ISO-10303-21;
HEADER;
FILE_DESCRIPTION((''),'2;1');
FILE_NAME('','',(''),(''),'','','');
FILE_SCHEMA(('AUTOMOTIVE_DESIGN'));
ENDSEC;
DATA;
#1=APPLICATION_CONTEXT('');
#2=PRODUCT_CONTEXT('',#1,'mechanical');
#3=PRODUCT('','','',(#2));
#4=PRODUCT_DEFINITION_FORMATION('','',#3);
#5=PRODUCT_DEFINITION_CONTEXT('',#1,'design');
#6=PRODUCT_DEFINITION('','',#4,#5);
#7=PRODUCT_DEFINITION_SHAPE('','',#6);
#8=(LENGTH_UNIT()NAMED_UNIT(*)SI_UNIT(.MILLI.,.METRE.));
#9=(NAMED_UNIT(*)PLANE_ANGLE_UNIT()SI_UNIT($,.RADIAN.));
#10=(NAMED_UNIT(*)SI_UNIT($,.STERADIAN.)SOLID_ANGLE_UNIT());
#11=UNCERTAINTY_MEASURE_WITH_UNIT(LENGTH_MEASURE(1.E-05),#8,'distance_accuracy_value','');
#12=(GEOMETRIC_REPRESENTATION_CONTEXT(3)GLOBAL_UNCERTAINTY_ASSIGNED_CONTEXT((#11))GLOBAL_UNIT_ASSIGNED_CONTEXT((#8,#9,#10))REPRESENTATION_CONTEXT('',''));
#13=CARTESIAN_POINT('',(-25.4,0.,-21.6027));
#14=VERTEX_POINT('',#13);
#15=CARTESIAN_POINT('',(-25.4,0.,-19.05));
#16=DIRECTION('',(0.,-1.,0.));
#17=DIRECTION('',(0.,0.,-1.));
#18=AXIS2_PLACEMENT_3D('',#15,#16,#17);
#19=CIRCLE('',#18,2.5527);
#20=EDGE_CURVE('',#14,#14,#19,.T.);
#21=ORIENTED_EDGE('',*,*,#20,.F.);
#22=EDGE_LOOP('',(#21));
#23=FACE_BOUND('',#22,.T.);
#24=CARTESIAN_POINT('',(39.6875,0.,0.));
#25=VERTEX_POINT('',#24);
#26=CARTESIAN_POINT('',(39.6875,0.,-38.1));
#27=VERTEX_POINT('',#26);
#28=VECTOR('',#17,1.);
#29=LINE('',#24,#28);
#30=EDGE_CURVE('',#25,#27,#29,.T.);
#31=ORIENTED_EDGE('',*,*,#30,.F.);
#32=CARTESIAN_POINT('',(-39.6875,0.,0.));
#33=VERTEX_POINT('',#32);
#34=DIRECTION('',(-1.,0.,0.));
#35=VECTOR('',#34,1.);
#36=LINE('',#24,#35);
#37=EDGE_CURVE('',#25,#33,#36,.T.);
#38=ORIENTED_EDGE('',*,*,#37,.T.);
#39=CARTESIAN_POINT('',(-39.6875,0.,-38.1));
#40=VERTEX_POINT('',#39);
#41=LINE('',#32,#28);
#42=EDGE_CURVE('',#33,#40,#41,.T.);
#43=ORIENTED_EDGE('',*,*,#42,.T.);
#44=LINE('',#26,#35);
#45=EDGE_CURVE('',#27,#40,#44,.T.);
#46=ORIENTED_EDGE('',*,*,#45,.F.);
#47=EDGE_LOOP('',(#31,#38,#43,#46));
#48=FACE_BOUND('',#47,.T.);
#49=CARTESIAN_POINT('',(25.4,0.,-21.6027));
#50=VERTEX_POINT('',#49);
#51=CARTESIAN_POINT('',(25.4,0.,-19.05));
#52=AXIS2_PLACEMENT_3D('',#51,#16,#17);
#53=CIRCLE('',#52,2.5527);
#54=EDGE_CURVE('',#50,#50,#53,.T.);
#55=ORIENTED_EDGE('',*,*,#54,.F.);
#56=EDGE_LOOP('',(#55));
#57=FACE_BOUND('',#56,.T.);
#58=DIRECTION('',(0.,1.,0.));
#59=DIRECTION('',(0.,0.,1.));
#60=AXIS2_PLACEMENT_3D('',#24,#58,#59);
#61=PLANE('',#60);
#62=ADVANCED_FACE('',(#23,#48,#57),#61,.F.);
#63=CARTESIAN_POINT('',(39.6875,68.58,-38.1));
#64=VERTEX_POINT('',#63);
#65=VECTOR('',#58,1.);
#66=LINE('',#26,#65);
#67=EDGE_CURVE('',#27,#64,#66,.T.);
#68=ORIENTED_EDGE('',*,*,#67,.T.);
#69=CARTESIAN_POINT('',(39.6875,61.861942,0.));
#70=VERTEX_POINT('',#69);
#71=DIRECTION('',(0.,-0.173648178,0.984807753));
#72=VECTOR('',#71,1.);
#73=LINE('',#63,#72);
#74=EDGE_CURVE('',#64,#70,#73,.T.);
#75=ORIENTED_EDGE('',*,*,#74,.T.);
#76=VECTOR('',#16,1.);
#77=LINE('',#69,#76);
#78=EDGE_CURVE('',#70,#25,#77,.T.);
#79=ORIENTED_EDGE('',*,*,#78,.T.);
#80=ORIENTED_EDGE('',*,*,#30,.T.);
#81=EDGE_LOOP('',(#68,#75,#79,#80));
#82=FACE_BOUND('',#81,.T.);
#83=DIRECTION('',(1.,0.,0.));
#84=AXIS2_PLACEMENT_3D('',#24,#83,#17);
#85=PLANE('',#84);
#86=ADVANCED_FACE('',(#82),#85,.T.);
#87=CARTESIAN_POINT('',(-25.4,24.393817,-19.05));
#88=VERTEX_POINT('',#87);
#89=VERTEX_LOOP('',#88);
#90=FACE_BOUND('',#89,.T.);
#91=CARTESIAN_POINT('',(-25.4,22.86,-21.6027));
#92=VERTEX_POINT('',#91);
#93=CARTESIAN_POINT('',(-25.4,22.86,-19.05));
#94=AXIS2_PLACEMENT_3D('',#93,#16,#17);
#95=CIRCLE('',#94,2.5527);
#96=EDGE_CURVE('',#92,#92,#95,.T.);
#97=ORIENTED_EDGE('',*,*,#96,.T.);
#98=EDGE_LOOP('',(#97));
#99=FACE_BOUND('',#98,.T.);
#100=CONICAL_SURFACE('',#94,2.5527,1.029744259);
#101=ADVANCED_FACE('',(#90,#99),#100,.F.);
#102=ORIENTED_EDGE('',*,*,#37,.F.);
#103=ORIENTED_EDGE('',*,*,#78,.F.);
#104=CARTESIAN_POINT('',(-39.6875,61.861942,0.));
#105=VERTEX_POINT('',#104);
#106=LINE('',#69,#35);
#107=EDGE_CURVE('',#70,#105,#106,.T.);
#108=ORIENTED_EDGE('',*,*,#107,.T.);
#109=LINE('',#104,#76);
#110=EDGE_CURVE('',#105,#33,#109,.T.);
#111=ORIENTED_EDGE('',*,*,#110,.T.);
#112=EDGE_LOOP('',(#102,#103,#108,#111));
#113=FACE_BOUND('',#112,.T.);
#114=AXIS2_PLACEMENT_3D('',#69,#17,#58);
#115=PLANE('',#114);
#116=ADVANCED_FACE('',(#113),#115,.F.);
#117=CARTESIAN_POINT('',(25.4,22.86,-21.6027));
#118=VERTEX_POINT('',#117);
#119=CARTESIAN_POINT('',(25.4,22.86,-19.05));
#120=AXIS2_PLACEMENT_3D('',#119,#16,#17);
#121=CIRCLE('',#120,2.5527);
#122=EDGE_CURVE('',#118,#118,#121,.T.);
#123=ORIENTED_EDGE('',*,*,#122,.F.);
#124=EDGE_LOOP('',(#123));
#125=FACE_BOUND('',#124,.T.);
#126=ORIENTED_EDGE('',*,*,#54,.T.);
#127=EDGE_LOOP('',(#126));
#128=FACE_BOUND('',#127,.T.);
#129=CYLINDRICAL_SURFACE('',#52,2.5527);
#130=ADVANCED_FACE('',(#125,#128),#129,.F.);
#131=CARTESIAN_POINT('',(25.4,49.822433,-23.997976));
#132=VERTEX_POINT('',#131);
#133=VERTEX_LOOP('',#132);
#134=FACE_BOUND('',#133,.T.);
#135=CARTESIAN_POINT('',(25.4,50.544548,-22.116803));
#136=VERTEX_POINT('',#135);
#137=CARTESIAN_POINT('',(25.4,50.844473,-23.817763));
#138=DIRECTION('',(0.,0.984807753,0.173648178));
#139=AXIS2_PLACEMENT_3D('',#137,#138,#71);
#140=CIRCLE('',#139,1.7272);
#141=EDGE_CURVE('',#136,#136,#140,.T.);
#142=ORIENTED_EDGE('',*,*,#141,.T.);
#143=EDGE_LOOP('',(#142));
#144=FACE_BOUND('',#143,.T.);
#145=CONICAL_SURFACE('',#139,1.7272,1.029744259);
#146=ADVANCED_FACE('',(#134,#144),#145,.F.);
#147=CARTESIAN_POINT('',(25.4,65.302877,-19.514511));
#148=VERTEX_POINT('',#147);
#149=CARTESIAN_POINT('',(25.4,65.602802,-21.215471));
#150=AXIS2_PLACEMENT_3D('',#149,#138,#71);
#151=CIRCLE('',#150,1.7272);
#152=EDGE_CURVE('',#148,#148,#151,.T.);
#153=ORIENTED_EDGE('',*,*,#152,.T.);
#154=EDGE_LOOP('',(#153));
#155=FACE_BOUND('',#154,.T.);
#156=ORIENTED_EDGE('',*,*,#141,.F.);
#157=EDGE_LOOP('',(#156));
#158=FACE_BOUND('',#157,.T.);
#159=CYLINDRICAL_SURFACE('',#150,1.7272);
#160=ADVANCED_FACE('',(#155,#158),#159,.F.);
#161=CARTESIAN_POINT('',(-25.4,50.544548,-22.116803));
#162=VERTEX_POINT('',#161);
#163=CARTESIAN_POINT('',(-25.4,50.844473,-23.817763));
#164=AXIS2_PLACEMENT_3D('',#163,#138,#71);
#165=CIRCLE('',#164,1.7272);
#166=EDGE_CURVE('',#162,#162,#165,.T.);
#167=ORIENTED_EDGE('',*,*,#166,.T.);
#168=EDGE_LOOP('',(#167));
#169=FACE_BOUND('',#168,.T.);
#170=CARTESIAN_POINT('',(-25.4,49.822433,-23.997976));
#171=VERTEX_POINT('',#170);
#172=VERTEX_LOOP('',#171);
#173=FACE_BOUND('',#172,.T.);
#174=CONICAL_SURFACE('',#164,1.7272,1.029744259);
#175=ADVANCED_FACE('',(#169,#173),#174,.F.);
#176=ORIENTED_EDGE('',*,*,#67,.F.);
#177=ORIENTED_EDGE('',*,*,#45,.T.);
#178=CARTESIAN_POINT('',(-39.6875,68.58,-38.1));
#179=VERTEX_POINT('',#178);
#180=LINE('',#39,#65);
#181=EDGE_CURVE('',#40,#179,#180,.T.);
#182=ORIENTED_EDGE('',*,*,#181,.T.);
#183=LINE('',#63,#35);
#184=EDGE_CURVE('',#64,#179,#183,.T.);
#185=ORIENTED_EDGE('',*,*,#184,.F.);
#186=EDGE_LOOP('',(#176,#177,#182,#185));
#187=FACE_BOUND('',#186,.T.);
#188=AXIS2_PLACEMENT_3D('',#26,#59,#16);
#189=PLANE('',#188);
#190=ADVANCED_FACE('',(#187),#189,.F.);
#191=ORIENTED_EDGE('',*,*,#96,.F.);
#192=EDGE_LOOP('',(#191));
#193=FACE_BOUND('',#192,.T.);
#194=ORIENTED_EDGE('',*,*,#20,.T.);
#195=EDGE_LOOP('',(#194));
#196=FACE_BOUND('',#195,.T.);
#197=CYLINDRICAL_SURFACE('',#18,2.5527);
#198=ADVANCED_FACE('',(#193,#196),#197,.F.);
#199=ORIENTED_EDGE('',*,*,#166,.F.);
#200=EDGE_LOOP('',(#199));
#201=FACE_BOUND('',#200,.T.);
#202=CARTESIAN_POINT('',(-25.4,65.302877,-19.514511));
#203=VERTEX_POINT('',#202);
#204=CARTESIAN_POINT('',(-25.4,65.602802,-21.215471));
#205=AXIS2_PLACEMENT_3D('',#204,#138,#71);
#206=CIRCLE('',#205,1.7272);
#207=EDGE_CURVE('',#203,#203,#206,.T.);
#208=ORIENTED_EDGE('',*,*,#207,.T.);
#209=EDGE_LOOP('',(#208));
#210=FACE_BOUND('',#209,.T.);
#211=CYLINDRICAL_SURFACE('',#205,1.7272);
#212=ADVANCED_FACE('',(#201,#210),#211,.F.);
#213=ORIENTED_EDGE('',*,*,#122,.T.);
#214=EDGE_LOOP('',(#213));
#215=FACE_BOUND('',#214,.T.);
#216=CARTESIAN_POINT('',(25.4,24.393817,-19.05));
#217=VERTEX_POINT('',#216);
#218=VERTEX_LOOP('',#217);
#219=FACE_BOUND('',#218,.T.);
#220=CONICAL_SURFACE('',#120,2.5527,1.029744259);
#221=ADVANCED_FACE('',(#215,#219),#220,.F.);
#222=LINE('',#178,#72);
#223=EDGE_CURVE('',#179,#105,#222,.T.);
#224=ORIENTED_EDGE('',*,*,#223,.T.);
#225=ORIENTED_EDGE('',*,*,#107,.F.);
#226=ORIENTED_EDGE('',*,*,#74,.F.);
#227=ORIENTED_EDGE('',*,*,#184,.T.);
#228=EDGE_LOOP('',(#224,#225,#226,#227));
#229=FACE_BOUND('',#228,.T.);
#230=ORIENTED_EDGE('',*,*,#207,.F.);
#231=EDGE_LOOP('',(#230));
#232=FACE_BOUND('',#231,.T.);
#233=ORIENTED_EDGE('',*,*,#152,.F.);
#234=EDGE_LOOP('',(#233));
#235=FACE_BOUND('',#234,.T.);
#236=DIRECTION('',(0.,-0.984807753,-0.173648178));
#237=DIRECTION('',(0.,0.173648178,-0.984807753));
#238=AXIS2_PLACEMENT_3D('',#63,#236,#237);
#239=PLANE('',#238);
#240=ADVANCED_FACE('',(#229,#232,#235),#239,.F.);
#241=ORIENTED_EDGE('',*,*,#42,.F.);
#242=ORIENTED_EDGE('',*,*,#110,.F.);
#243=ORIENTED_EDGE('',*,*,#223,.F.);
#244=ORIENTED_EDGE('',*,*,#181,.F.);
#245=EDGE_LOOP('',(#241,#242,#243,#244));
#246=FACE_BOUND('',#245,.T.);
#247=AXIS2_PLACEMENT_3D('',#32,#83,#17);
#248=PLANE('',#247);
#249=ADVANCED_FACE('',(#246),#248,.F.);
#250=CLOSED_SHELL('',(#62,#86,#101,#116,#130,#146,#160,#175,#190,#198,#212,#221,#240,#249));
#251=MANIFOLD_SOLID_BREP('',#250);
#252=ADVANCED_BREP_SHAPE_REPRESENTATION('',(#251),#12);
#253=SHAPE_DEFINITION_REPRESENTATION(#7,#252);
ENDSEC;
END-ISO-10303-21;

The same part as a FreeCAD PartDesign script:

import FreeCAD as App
import Part
import Sketcher
Q = App.Units.Quantity

doc = App.newDocument("Part")
body = doc.addObject("PartDesign::Body", "Body")

sketch1 = doc.addObject("Sketcher::SketchObject", "Sketch")
body.addObject(sketch1)
sketch1.AttachmentSupport = (doc.YZ_Plane, [""])
sketch1.MapMode = "FlatFace"
sketch1.addGeometry([
    Part.LineSegment(App.Vector(0, 0, 0), App.Vector(0, -38.1, 0)),
    Part.LineSegment(App.Vector(0, -38.1, 0), App.Vector(68.58, -38.1, 0)),
    Part.LineSegment(App.Vector(68.58, -38.1, 0), App.Vector(61.861942, 0, 0)),
    Part.LineSegment(App.Vector(61.861942, 0, 0), App.Vector(0, 0, 0)),
], False)
sketch1.addConstraint([
    Sketcher.Constraint("Coincident", 0, 2, 1, 1),
    Sketcher.Constraint("Coincident", 1, 2, 2, 1),
    Sketcher.Constraint("Coincident", 2, 2, 3, 1),
    Sketcher.Constraint("Coincident", 3, 2, 0, 1),
    Sketcher.Constraint("Vertical", 0),
    Sketcher.Constraint("Horizontal", 1),
    Sketcher.Constraint("Horizontal", 3),
    Sketcher.Constraint("Coincident", 3, 2, -1, 1),
    Sketcher.Constraint("DistanceX", 1, 1, 1, 2, Q("2.7 in")),
    Sketcher.Constraint("DistanceY", 0, 2, 0, 1, Q("1.5 in")),
    Sketcher.Constraint("Angle", 2, Q("100 deg")),
])
pad1 = doc.addObject("PartDesign::Pad", "Pad")
body.addObject(pad1)
pad1.Profile = sketch1
pad1.Length = Q("3.125 in")
pad1.Midplane = True

sketch2 = doc.addObject("Sketcher::SketchObject", "Sketch001")
body.addObject(sketch2)
sketch2.AttachmentSupport = (doc.XZ_Plane, [""])
sketch2.MapMode = "FlatFace"
sketch2.addGeometry([
    Part.Circle(App.Vector(-25.4, -19.05, 0), App.Vector(0, 0, 1), 2.5527),
    Part.Circle(App.Vector(25.4, -19.05, 0), App.Vector(0, 0, 1), 2.5527),
], False)
sketch2.addConstraint([
    Sketcher.Constraint("Equal", 0, 1),
    Sketcher.Constraint("Symmetric", 0, 3, 1, 3, -2),
    Sketcher.Constraint("Diameter", 0, Q("0.201 in")),
    Sketcher.Constraint("DistanceX", 0, 3, -1, 1, Q("1 in")),
    Sketcher.Constraint("DistanceY", 0, 3, -1, 1, Q("0.75 in")),
])
doc.recompute()
hole = doc.addObject("PartDesign::Hole", "Hole")
body.addObject(hole)
hole.Profile = sketch2
hole.ThreadType = "None"
hole.Diameter = Q("0.201 in")
hole.DepthType = "Dimension"
hole.Depth = Q("0.9 in")
hole.DrillPoint = "Angled"
hole.DrillPointAngle = 118

sketch3 = doc.addObject("Sketcher::SketchObject", "Sketch002")
body.addObject(sketch3)
sketch3.Placement = App.Placement(App.Vector(0, 59.996576, 10.579015), App.Rotation(App.Vector(1, 0, 0), App.Vector(0, 0.173648178, -0.984807753), App.Vector(0, 0.984807753, 0.173648178), "ZXY"))
sketch3.addGeometry([
    Part.Circle(App.Vector(-25.4, 32.284967, 0), App.Vector(0, 0, 1), 1.7272),
    Part.Circle(App.Vector(25.4, 32.284967, 0), App.Vector(0, 0, 1), 1.7272),
], False)
sketch3.addConstraint([
    Sketcher.Constraint("Equal", 0, 1),
    Sketcher.Constraint("Symmetric", 0, 3, 1, 3, -2),
    Sketcher.Constraint("Diameter", 0, Q("0.136 in")),
    Sketcher.Constraint("DistanceX", 0, 3, -1, 1, Q("1 in")),
    Sketcher.Constraint("DistanceY", -1, 1, 0, 3, Q("32.284967 mm")),
])
doc.recompute()
hole2 = doc.addObject("PartDesign::Hole", "Hole001")
body.addObject(hole2)
hole2.Profile = sketch3
hole2.ThreadType = "None"
hole2.Diameter = Q("0.136 in")
hole2.DepthType = "Dimension"
hole2.Depth = Q("0.59 in")
hole2.DrillPoint = "Angled"
hole2.DrillPointAngle = 118

doc.recompute()
